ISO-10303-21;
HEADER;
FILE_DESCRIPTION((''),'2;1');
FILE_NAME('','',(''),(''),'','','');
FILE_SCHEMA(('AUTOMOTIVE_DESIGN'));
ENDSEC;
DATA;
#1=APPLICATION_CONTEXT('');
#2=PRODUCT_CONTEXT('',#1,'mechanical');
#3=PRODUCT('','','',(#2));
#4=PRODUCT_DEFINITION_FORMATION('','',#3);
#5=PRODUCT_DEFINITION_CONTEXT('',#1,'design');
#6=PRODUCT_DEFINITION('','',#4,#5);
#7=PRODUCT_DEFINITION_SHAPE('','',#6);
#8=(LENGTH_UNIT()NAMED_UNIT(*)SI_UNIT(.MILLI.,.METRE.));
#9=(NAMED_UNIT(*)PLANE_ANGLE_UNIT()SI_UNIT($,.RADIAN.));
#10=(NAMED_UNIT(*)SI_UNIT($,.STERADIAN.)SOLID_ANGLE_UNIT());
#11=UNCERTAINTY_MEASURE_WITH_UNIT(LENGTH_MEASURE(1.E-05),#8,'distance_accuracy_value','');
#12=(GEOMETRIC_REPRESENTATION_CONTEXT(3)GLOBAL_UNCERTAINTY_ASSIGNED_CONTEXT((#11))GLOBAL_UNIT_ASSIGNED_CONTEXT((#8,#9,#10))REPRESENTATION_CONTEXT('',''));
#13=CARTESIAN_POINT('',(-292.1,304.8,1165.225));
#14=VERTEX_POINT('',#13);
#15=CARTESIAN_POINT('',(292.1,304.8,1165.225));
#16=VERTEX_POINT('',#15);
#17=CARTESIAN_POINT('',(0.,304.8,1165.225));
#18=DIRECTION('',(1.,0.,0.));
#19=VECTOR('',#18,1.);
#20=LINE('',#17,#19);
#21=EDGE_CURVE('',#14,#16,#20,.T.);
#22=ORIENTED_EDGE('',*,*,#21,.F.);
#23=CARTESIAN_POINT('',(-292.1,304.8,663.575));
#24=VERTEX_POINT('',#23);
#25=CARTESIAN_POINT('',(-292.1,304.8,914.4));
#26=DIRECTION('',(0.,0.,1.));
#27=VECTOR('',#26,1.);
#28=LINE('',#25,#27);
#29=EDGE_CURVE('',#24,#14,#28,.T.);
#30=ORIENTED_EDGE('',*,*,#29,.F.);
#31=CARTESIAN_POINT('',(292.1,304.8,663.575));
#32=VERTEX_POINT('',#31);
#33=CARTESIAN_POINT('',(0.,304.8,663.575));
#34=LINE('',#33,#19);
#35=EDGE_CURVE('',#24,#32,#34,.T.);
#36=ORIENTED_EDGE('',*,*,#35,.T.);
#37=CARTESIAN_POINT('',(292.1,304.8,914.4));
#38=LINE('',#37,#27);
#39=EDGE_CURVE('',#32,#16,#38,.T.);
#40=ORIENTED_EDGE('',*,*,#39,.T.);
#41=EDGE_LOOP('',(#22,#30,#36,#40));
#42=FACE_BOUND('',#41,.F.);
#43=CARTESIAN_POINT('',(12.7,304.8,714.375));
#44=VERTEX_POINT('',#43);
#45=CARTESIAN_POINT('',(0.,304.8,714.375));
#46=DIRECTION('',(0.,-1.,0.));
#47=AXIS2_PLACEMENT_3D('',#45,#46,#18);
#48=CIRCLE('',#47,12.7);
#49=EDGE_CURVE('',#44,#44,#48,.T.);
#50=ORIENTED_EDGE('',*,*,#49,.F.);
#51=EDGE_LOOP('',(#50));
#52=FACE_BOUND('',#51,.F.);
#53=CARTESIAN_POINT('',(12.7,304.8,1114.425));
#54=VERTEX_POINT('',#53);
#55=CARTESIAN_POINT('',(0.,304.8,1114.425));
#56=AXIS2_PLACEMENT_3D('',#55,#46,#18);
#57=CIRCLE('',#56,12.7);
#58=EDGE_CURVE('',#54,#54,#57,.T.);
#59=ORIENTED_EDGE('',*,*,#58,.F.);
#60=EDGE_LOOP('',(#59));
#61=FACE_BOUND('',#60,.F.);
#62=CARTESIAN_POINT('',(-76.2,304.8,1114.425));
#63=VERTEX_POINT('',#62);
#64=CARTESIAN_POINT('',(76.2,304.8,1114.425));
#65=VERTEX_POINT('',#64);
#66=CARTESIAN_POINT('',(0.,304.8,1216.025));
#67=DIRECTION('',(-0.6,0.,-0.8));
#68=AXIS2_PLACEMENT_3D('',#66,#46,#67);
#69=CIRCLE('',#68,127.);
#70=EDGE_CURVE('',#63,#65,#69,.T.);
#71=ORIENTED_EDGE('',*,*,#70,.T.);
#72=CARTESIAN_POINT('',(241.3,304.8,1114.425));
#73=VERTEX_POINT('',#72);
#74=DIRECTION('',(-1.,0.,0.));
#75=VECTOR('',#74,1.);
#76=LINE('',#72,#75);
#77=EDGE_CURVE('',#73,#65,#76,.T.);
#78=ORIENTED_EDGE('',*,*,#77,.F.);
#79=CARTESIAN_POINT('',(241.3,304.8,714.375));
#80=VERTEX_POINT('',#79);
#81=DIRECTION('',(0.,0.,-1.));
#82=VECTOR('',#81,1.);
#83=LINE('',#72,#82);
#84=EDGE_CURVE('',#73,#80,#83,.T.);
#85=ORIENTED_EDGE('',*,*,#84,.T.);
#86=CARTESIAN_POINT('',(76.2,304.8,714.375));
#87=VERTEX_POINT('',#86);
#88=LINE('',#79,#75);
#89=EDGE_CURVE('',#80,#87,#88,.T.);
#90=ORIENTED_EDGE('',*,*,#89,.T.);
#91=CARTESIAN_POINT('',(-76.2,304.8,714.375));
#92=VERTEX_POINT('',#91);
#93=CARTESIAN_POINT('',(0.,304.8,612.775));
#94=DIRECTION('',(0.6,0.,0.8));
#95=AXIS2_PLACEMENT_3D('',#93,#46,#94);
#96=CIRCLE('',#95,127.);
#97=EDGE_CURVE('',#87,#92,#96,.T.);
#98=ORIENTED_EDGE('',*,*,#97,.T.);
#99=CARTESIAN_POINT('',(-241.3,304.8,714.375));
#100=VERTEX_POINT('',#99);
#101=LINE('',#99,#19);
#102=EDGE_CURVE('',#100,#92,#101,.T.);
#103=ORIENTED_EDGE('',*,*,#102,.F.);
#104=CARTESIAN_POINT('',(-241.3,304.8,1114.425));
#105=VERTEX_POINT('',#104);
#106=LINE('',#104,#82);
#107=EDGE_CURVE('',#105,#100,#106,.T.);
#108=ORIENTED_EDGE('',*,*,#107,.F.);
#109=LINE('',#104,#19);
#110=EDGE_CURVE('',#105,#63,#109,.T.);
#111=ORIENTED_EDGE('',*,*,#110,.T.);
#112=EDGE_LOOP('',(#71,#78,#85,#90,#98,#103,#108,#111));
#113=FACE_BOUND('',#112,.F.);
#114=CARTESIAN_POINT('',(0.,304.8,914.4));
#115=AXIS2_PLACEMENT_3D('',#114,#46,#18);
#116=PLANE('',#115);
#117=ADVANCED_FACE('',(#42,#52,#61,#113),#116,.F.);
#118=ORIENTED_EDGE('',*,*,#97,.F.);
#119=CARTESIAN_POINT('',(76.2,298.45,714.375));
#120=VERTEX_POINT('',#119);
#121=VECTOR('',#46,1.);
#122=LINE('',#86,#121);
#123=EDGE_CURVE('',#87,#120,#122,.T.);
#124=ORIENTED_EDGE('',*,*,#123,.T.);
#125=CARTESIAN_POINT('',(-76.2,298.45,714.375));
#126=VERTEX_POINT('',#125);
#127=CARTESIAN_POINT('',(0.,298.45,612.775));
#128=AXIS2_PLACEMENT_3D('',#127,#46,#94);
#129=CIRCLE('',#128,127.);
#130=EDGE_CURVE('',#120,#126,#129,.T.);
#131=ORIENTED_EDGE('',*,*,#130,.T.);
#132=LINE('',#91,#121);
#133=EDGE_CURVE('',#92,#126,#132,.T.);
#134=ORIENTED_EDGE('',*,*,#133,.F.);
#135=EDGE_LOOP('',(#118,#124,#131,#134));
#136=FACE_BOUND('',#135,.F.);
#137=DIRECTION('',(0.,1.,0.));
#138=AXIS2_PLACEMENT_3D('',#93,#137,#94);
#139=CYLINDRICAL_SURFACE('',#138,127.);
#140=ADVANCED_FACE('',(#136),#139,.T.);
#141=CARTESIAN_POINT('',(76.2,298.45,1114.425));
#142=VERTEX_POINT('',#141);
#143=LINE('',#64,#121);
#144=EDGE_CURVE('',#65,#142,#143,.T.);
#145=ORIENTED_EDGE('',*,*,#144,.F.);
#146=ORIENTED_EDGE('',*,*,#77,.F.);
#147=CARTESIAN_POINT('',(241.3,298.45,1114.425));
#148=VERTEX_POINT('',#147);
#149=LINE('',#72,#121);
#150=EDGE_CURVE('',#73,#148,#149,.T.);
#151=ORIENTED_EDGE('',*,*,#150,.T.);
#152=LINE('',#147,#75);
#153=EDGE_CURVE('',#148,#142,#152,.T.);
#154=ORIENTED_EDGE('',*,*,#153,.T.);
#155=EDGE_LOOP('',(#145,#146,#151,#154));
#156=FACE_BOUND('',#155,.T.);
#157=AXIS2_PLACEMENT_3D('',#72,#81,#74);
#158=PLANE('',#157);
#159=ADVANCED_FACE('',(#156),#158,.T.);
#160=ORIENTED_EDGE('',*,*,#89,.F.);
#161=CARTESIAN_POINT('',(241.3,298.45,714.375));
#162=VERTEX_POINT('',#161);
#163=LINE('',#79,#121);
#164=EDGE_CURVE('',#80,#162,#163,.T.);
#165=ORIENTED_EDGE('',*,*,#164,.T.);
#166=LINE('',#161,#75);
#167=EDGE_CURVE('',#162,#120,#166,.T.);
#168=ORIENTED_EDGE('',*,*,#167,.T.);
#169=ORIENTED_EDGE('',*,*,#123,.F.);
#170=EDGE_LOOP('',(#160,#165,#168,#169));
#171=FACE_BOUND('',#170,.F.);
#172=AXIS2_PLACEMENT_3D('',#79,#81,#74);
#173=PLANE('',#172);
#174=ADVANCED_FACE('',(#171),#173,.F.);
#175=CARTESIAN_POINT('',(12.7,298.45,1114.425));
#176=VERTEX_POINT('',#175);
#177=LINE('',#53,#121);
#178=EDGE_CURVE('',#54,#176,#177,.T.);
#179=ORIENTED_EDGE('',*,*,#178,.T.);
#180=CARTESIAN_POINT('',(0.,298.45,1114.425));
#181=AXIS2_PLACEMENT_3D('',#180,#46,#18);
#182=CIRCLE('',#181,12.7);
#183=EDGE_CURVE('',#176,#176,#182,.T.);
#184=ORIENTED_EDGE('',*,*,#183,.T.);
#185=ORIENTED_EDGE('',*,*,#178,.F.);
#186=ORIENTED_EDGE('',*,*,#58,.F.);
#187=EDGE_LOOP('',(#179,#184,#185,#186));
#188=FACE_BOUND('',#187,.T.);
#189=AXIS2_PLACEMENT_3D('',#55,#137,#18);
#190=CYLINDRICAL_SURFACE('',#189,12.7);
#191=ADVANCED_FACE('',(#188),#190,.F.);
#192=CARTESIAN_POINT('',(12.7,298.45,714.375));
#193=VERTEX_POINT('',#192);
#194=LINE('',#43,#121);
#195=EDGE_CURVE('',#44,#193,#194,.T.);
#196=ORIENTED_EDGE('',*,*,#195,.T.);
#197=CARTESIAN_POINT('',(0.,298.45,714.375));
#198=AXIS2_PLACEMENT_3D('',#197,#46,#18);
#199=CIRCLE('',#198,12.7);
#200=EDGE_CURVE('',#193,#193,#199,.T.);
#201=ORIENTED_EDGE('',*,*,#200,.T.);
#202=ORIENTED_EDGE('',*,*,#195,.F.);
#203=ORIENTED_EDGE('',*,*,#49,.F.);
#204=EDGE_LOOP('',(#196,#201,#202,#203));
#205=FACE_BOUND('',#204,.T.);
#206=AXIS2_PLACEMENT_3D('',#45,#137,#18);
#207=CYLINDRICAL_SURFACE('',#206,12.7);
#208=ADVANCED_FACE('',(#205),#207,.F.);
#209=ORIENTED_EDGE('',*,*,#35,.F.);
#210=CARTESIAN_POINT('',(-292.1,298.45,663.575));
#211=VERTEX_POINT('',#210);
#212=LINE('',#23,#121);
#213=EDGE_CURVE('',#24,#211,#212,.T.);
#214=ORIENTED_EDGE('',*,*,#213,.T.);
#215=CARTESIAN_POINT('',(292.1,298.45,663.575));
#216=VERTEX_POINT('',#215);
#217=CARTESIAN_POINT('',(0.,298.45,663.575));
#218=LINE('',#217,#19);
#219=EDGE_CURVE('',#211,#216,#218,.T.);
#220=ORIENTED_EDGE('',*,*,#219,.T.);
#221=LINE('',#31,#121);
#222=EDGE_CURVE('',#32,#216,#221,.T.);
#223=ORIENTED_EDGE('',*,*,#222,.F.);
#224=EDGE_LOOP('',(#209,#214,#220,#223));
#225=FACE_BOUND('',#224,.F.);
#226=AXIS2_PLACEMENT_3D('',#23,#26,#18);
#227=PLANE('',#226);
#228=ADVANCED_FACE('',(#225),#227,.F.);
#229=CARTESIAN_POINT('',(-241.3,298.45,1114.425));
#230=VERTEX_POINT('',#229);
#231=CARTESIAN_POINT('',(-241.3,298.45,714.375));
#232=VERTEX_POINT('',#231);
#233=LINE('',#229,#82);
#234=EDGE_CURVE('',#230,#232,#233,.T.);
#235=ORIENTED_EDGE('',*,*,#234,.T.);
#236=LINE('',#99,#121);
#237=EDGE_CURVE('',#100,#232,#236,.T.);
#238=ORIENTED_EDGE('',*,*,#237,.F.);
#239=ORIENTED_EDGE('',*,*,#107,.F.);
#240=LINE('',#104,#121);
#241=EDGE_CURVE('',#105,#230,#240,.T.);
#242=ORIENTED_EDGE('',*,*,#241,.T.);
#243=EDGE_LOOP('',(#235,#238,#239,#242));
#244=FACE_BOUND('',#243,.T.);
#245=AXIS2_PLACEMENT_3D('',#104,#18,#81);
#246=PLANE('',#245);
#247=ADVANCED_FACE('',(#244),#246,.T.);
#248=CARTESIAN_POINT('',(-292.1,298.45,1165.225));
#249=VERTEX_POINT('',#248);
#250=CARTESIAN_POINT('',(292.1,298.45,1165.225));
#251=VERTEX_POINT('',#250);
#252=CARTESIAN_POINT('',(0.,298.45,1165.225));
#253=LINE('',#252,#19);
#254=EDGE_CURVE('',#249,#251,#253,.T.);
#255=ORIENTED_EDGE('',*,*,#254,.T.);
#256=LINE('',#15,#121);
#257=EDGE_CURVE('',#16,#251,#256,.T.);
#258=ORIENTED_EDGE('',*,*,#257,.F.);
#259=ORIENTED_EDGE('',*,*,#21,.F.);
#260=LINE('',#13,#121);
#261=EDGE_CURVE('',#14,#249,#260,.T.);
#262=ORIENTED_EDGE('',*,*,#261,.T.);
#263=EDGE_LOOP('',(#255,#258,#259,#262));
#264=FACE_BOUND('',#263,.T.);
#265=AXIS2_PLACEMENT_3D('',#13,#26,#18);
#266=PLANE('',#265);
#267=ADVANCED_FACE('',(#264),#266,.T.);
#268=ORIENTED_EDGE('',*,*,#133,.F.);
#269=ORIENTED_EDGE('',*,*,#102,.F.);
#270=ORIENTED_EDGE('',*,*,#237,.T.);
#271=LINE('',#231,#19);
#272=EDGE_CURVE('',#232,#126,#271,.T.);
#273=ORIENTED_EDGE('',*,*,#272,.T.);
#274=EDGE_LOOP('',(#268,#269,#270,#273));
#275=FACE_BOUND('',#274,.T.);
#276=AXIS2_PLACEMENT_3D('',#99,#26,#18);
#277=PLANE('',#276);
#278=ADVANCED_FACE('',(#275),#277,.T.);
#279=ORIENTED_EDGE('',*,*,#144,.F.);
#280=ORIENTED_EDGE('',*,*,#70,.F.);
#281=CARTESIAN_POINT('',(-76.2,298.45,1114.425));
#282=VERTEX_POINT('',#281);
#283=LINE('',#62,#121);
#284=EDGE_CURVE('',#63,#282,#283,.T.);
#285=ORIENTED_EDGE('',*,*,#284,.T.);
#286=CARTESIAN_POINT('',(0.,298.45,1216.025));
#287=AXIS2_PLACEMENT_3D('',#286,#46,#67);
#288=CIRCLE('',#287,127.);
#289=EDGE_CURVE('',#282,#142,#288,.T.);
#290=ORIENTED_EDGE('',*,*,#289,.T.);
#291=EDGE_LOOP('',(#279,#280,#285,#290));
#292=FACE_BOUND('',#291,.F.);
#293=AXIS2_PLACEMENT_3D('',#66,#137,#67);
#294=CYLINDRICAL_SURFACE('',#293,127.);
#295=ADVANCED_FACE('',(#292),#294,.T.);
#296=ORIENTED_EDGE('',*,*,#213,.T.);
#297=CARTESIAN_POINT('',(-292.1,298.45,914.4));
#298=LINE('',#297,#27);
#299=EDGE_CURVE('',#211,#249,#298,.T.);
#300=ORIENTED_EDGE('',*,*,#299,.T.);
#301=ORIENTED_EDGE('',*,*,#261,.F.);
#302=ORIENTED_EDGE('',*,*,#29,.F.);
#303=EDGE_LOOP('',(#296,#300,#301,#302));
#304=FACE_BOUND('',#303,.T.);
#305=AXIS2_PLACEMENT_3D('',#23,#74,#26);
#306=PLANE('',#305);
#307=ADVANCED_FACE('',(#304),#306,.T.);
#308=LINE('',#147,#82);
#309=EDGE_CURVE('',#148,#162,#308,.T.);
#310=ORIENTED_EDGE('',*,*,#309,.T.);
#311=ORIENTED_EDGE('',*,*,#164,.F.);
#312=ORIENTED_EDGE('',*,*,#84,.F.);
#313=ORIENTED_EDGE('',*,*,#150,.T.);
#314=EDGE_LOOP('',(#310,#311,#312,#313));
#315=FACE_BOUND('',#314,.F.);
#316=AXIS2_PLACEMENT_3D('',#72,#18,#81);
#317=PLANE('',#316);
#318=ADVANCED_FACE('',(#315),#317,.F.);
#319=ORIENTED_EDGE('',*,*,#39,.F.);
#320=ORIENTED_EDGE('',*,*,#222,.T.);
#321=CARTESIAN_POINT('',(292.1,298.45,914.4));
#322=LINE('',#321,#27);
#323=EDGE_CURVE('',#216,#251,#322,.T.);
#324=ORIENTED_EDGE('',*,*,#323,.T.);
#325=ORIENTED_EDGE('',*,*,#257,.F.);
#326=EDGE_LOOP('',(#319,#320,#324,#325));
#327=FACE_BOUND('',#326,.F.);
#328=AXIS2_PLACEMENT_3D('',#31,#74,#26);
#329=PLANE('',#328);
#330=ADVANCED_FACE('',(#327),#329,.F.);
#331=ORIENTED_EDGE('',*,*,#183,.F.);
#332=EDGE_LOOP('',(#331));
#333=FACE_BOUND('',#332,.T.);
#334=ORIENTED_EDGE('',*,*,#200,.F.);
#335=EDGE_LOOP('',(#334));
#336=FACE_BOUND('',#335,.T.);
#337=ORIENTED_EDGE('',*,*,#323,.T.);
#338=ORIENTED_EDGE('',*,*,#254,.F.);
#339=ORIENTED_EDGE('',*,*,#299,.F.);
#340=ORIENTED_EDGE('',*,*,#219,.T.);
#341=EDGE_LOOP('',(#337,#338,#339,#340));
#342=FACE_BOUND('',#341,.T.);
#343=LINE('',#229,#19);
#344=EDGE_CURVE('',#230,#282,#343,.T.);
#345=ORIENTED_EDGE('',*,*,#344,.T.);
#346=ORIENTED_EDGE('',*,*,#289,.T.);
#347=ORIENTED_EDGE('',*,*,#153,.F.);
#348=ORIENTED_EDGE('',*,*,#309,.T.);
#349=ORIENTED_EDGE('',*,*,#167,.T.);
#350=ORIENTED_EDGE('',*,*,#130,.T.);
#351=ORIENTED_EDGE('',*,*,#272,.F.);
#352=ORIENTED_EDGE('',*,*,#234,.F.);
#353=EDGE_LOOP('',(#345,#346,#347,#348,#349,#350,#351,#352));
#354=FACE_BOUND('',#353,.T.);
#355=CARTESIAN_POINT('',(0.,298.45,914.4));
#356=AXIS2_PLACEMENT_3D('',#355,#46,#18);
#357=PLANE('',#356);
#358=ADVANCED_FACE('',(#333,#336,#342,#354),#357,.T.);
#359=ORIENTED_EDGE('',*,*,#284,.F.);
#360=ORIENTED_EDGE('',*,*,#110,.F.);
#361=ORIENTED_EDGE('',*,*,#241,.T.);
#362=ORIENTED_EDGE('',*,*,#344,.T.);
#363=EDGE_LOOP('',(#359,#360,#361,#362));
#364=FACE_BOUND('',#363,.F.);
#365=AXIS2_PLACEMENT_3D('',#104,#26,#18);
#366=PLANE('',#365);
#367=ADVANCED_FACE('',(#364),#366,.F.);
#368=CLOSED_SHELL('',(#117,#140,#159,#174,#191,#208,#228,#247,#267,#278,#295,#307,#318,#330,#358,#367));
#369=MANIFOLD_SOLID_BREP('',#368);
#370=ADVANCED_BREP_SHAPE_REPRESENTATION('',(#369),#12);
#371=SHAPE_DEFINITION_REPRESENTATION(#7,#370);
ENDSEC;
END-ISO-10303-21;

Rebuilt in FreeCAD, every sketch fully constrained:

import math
import FreeCAD as App
import Part
import Sketcher
Q = App.Units.Quantity

doc = App.newDocument("Part")
body = doc.addObject("PartDesign::Body", "Body")

# Sketch on XZ plane
sketch1 = body.newObject("Sketcher::SketchObject", "Sketch")
sketch1.AttachmentSupport = (doc.getObject("XZ_Plane"), [""])
sketch1.MapMode = "FlatFace"
sketch1.AttachmentOffset = App.Placement(App.Vector(0, 0, -12 * 25.4), App.Rotation())
sketch1.addGeometry([
    Part.LineSegment(App.Vector(-292, 1165, 0), App.Vector(-292, 664, 0)),  # 0
    Part.LineSegment(App.Vector(-292, 664, 0), App.Vector(292, 664, 0)),  # 1
    Part.LineSegment(App.Vector(292, 664, 0), App.Vector(292, 1165, 0)),  # 2
    Part.LineSegment(App.Vector(292, 1165, 0), App.Vector(-292, 1165, 0)),  # 3
    Part.Circle(App.Vector(0, 714, 0), App.Vector(0, 0, 1), 13),  # 4
    Part.LineSegment(App.Vector(-241, 714, 0), App.Vector(-241, 1114, 0)),  # 5
    Part.LineSegment(App.Vector(-241, 1114, 0), App.Vector(-76, 1114, 0)),  # 6
    Part.ArcOfCircle(Part.Circle(App.Vector(0, 1216, 0), App.Vector(0, 0, 1), 127), math.radians(-127), math.radians(-53)),  # 7
    Part.LineSegment(App.Vector(76, 1114, 0), App.Vector(241, 1114, 0)),  # 8
    Part.LineSegment(App.Vector(241, 1114, 0), App.Vector(241, 714, 0)),  # 9
    Part.LineSegment(App.Vector(241, 714, 0), App.Vector(76, 714, 0)),  # 10
    Part.ArcOfCircle(Part.Circle(App.Vector(0, 613, 0), App.Vector(0, 0, 1), 127), math.radians(53), math.radians(127)),  # 11
    Part.LineSegment(App.Vector(-76, 714, 0), App.Vector(-241, 714, 0)),  # 12
    Part.Circle(App.Vector(0, 1114, 0), App.Vector(0, 0, 1), 13),  # 13
], False)
sketch1.addConstraint([
    Sketcher.Constraint("Coincident", 0, 2, 1, 1),
    Sketcher.Constraint("Coincident", 1, 2, 2, 1),
    Sketcher.Constraint("Coincident", 2, 2, 3, 1),
    Sketcher.Constraint("Coincident", 3, 2, 0, 1),
    Sketcher.Constraint("Coincident", 5, 2, 6, 1),
    Sketcher.Constraint("Coincident", 6, 2, 7, 1),
    Sketcher.Constraint("Coincident", 7, 2, 8, 1),
    Sketcher.Constraint("Coincident", 8, 2, 9, 1),
    Sketcher.Constraint("Coincident", 9, 2, 10, 1),
    Sketcher.Constraint("Coincident", 10, 2, 11, 1),
    Sketcher.Constraint("Coincident", 11, 2, 12, 1),
    Sketcher.Constraint("Coincident", 12, 2, 5, 1),
    Sketcher.Constraint("Vertical", 0),
    Sketcher.Constraint("Horizontal", 1),
    Sketcher.Constraint("Vertical", 2),
    Sketcher.Constraint("Horizontal", 3),
    Sketcher.Constraint("Vertical", 5),
    Sketcher.Constraint("Horizontal", 6),
    Sketcher.Constraint("Horizontal", 8),
    Sketcher.Constraint("Vertical", 9),
    Sketcher.Constraint("Horizontal", 10),
    Sketcher.Constraint("Horizontal", 12),
    Sketcher.Constraint("Equal", 7, 11),
    Sketcher.Constraint("Equal", 4, 13),
    Sketcher.Constraint("Symmetric", 6, 2, 7, 2, -2),
    Sketcher.Constraint("Symmetric", 10, 2, 11, 2, -2),
    Sketcher.Constraint("PointOnObject", 4, 3, -2),
    Sketcher.Constraint("PointOnObject", 13, 3, -2),
    Sketcher.Constraint("Horizontal", 13, 3, 5, 2),
    Sketcher.Constraint("Horizontal", 4, 3, 9, 2),
    Sketcher.Constraint("Vertical", 7, 2, 10, 2),
    Sketcher.Constraint("Equal", 6, 8),
    Sketcher.Constraint("Diameter", 4, Q("1 in")),
    Sketcher.Constraint("Radius", 7, Q("5 in")),
    Sketcher.Constraint("DistanceX", 1, 1, 1, 2, Q("23 in")),
    Sketcher.Constraint("DistanceX", 6, 1, 6, 2, Q("6.5 in")),
    Sketcher.Constraint("DistanceX", 6, 2, -1, 1, Q("3 in")),
    Sketcher.Constraint("DistanceY", 0, 2, 4, 3, Q("2 in")),
    Sketcher.Constraint("DistanceY", 13, 3, 2, 2, Q("2 in")),
    Sketcher.Constraint("DistanceX", 3, 2, 5, 2, Q("2 in")),
    Sketcher.Constraint("DistanceY", 0, 2, 0, 1, Q("19.75 in")),
    Sketcher.Constraint("DistanceY", -1, 1, 4, 3, Q("28.125 in")),
])
pad1 = body.newObject("PartDesign::Pad", "Pad")
pad1.Profile = sketch1
pad1.Length = Q("0.25 in")

doc.recompute()
